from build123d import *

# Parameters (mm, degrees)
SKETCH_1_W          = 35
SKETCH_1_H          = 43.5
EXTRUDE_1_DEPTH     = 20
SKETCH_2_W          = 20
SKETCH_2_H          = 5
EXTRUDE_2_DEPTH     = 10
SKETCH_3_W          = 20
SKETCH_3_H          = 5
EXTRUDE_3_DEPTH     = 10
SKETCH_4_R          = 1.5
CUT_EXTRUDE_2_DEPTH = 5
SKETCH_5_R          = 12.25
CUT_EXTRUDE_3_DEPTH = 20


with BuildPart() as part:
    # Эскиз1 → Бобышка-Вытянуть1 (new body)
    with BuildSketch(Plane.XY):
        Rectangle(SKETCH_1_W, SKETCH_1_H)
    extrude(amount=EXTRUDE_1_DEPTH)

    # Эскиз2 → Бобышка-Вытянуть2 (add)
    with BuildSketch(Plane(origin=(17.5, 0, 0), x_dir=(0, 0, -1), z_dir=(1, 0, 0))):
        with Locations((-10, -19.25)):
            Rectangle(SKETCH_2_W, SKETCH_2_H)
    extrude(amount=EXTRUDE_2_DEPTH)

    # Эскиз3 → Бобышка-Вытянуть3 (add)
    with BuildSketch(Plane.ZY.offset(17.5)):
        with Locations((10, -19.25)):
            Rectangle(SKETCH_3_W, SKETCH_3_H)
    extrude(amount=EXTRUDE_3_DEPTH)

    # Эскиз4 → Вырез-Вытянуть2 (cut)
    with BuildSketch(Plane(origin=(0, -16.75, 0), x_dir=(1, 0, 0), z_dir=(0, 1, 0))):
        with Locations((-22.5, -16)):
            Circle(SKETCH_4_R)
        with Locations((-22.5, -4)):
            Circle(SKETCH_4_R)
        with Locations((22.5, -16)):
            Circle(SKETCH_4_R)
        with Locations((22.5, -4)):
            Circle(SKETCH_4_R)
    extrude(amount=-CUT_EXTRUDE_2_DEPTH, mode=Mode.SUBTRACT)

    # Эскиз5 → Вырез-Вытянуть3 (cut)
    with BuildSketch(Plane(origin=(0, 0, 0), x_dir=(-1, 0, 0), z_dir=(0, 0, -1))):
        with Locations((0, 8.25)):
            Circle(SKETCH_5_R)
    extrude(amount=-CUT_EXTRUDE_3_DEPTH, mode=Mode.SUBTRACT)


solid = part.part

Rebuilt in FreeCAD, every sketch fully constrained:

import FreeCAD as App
import Part
import Sketcher

doc = App.newDocument("Part")
body = doc.addObject("PartDesign::Body", "Body")

sketch1 = doc.addObject("Sketcher::SketchObject", "Sketch")
body.addObject(sketch1)
sketch1.AttachmentSupport = (doc.XY_Plane, [""])
sketch1.MapMode = "FlatFace"
sketch1.addGeometry(Part.LineSegment(App.Vector(-18, 22, 0), App.Vector(-18, -22, 0)), False)
sketch1.addGeometry(Part.LineSegment(App.Vector(-18, -22, 0), App.Vector(18, -22, 0)), False)
sketch1.addGeometry(Part.LineSegment(App.Vector(18, -22, 0), App.Vector(18, 22, 0)), False)
sketch1.addGeometry(Part.LineSegment(App.Vector(18, 22, 0), App.Vector(-18, 22, 0)), False)
sketch1.addConstraint(Sketcher.Constraint("Coincident", 0, 2, 1, 1))
sketch1.addConstraint(Sketcher.Constraint("Coincident", 1, 2, 2, 1))
sketch1.addConstraint(Sketcher.Constraint("Coincident", 2, 2, 3, 1))
sketch1.addConstraint(Sketcher.Constraint("Coincident", 3, 2, 0, 1))
sketch1.addConstraint(Sketcher.Constraint("Vertical", 0))
sketch1.addConstraint(Sketcher.Constraint("Horizontal", 1))
sketch1.addConstraint(Sketcher.Constraint("Vertical", 2))
sketch1.addConstraint(Sketcher.Constraint("Horizontal", 3))
sketch1.addConstraint(Sketcher.Constraint("Symmetric", 0, 2, 2, 2, -1, 1))
sketch1.addConstraint(Sketcher.Constraint("DistanceX", 1, 1, 1, 2, 35.0))
sketch1.addConstraint(Sketcher.Constraint("DistanceY", 0, 2, 0, 1, 43.5))
pad1 = doc.addObject("PartDesign::Pad", "Pad")
body.addObject(pad1)
pad1.Profile = sketch1
pad1.Length = 20

sketch2 = doc.addObject("Sketcher::SketchObject", "Sketch001")
body.addObject(sketch2)
sketch2.AttachmentSupport = (doc.YZ_Plane, [""])
sketch2.MapMode = "FlatFace"
sketch2.AttachmentOffset = App.Placement(App.Vector(0, 0, 17.5), App.Rotation())
sketch2.addGeometry(Part.LineSegment(App.Vector(-17, 20, 0), App.Vector(-22, 20, 0)), False)
sketch2.addGeometry(Part.LineSegment(App.Vector(-22, 20, 0), App.Vector(-22, 0, 0)), False)
sketch2.addGeometry(Part.LineSegment(App.Vector(-22, 0, 0), App.Vector(-17, 0, 0)), False)
sketch2.addGeometry(Part.LineSegment(App.Vector(-17, 0, 0), App.Vector(-17, 20, 0)), False)
sketch2.addConstraint(Sketcher.Constraint("Coincident", 0, 2, 1, 1))
sketch2.addConstraint(Sketcher.Constraint("Coincident", 1, 2, 2, 1))
sketch2.addConstraint(Sketcher.Constraint("Coincident", 2, 2, 3, 1))
sketch2.addConstraint(Sketcher.Constraint("Coincident", 3, 2, 0, 1))
sketch2.addConstraint(Sketcher.Constraint("Horizontal", 0))
sketch2.addConstraint(Sketcher.Constraint("Vertical", 1))
sketch2.addConstraint(Sketcher.Constraint("Horizontal", 2))
sketch2.addConstraint(Sketcher.Constraint("Vertical", 3))
sketch2.addConstraint(Sketcher.Constraint("PointOnObject", 1, 2, -1))
sketch2.addConstraint(Sketcher.Constraint("DistanceX", 0, 2, 0, 1, 5.0))
sketch2.addConstraint(Sketcher.Constraint("DistanceY", 1, 2, 1, 1, 20.0))
sketch2.addConstraint(Sketcher.Constraint("DistanceX", 0, 2, -1, 1, 21.75))
pad2 = doc.addObject("PartDesign::Pad", "Pad001")
body.addObject(pad2)
pad2.Profile = sketch2
pad2.Length = 10

sketch3 = doc.addObject("Sketcher::SketchObject", "Sketch002")
body.addObject(sketch3)
sketch3.AttachmentSupport = (doc.YZ_Plane, [""])
sketch3.MapMode = "FlatFace"
sketch3.AttachmentOffset = App.Placement(App.Vector(0, 0, -17.5), App.Rotation())
sketch3.addGeometry(Part.LineSegment(App.Vector(-17, 0, 0), App.Vector(-22, 0, 0)), False)
sketch3.addGeometry(Part.LineSegment(App.Vector(-22, 0, 0), App.Vector(-22, 20, 0)), False)
sketch3.addGeometry(Part.LineSegment(App.Vector(-22, 20, 0), App.Vector(-17, 20, 0)), False)
sketch3.addGeometry(Part.LineSegment(App.Vector(-17, 20, 0), App.Vector(-17, 0, 0)), False)
sketch3.addConstraint(Sketcher.Constraint("Coincident", 0, 2, 1, 1))
sketch3.addConstraint(Sketcher.Constraint("Coincident", 1, 2, 2, 1))
sketch3.addConstraint(Sketcher.Constraint("Coincident", 2, 2, 3, 1))
sketch3.addConstraint(Sketcher.Constraint("Coincident", 3, 2, 0, 1))
sketch3.addConstraint(Sketcher.Constraint("Horizontal", 0))
sketch3.addConstraint(Sketcher.Constraint("Vertical", 1))
sketch3.addConstraint(Sketcher.Constraint("Horizontal", 2))
sketch3.addConstraint(Sketcher.Constraint("Vertical", 3))
sketch3.addConstraint(Sketcher.Constraint("PointOnObject", 0, 2, -1))
sketch3.addConstraint(Sketcher.Constraint("DistanceX", 0, 2, 0, 1, 5.0))
sketch3.addConstraint(Sketcher.Constraint("DistanceY", 1, 1, 1, 2, 20.0))
sketch3.addConstraint(Sketcher.Constraint("DistanceX", 0, 2, -1, 1, 21.75))
pad3 = doc.addObject("PartDesign::Pad", "Pad002")
body.addObject(pad3)
pad3.Profile = sketch3
pad3.Length = 10
pad3.Reversed = True

sketch4 = doc.addObject("Sketcher::SketchObject", "Sketch003")
body.addObject(sketch4)
sketch4.AttachmentSupport = (doc.XZ_Plane, [""])
sketch4.MapMode = "FlatFace"
sketch4.AttachmentOffset = App.Placement(App.Vector(0, 0, 16.75), App.Rotation())
sketch4.addGeometry(Part.Circle(App.Vector(-22.5, 16, 0), App.Vector(0, 0, 1), 1.5), False)
sketch4.addGeometry(Part.Circle(App.Vector(-22.5, 4, 0), App.Vector(0, 0, 1), 1.5), False)
sketch4.addGeometry(Part.Circle(App.Vector(22.5, 16, 0), App.Vector(0, 0, 1), 1.5), False)
sketch4.addGeometry(Part.Circle(App.Vector(22.5, 4, 0), App.Vector(0, 0, 1), 1.5), False)
sketch4.addConstraint(Sketcher.Constraint("Equal", 0, 1))
sketch4.addConstraint(Sketcher.Constraint("Equal", 1, 2))
sketch4.addConstraint(Sketcher.Constraint("Equal", 2, 3))
sketch4.addConstraint(Sketcher.Constraint("Symmetric", 0, 3, 2, 3, -2))
sketch4.addConstraint(Sketcher.Constraint("Symmetric", 1, 3, 3, 3, -2))
sketch4.addConstraint(Sketcher.Constraint("Vertical", 0, 3, 1, 3))
sketch4.addConstraint(Sketcher.Constraint("Diameter", 0, 3.0))
sketch4.addConstraint(Sketcher.Constraint("DistanceY", -1, 1, 0, 3, 16.0))
sketch4.addConstraint(Sketcher.Constraint("DistanceY", -1, 1, 1, 3, 4.0))
sketch4.addConstraint(Sketcher.Constraint("DistanceX", 0, 3, 2, 3, 45.0))
pocket1 = doc.addObject("PartDesign::Pocket", "Pocket")
body.addObject(pocket1)
pocket1.Profile = sketch4
pocket1.Length = 5
pocket1.Reversed = True

sketch5 = doc.addObject("Sketcher::SketchObject", "Sketch004")
body.addObject(sketch5)
sketch5.AttachmentSupport = (doc.XY_Plane, [""])
sketch5.MapMode = "FlatFace"
sketch5.addGeometry(Part.Circle(App.Vector(0, 8, 0), App.Vector(0, 0, 1), 12), False)
sketch5.addConstraint(Sketcher.Constraint("PointOnObject", 0, 3, -2))
sketch5.addConstraint(Sketcher.Constraint("Diameter", 0, 24.5))
sketch5.addConstraint(Sketcher.Constraint("DistanceY", -1, 1, 0, 3, 8.25))
pocket2 = doc.addObject("PartDesign::Pocket", "Pocket001")
body.addObject(pocket2)
pocket2.Profile = sketch5
pocket2.Length = 20
pocket2.Reversed = True

doc.recompute()
